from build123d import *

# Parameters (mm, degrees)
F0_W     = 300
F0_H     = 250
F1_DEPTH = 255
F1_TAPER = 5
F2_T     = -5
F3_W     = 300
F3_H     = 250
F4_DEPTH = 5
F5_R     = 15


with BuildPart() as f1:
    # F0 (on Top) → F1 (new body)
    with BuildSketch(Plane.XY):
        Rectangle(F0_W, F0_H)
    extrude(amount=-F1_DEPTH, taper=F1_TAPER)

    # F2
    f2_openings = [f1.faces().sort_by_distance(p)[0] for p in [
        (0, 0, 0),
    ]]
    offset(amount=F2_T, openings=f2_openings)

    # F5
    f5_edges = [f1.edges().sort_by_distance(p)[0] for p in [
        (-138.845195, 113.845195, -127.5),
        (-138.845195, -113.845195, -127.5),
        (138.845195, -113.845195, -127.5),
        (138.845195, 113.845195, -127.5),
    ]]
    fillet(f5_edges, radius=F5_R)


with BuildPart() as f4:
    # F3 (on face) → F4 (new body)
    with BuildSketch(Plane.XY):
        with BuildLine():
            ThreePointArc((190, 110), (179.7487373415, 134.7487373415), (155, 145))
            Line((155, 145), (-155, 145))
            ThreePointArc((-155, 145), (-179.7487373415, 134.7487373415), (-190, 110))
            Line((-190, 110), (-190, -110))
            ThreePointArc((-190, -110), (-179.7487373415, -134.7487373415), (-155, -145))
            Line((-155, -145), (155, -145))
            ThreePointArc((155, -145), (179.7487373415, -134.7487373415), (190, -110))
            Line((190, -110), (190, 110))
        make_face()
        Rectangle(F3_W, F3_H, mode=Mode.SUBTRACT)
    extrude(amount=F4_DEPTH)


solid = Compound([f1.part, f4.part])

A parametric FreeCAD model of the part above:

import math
import FreeCAD as App
import Part
import Sketcher
from FreeCAD import Vector
Q = App.Units.Quantity


def edges_at(feature, points):
    """Names of the edges that pass closest to the given points."""
    edges = feature.Shape.Edges
    near = lambda p: min(range(len(edges)), key=lambda i: edges[i].distToShape(Part.Vertex(*p))[0])
    return sorted({f"Edge{near(p) + 1}" for p in points})


def faces_at(feature, points):
    """Names of the faces that lie closest to the given points."""
    faces = feature.Shape.Faces
    near = lambda p: min(range(len(faces)), key=lambda i: faces[i].distToShape(Part.Vertex(*p))[0])
    return sorted({f"Face{near(p) + 1}" for p in points})


def add_polygon(sketch, points):
    """Adds a closed chain of lines whose ends are joined by coincident constraints."""
    first, n = sketch.GeometryCount, len(points)
    for a, b in zip(points, points[1:] + points[:1]):
        sketch.addGeometry(Part.LineSegment(App.Vector(*a, 0), App.Vector(*b, 0)), False)
    for i in range(n):
        sketch.addConstraint(Sketcher.Constraint("Coincident", first + i, 2, first + (i + 1) % n, 1))

doc = App.newDocument("Part")
body = doc.addObject("PartDesign::Body", "Body")

sketch1 = body.newObject("Sketcher::SketchObject", "Sketch")
sketch1.AttachmentSupport = (doc.getObject("XY_Plane"), [""])
sketch1.MapMode = "FlatFace"
add_polygon(sketch1, [(-150, 125), (-150, -125), (150, -125), (150, 125)])
sketch1.addConstraint([
    Sketcher.Constraint("Vertical", 0),
    Sketcher.Constraint("Horizontal", 1),
    Sketcher.Constraint("Vertical", 2),
    Sketcher.Constraint("Horizontal", 3),
    Sketcher.Constraint("Symmetric", 0, 2, 2, 2, -1, 1),
    Sketcher.Constraint("DistanceX", 1, 1, 1, 2, Q("300 mm")),
    Sketcher.Constraint("DistanceY", 0, 2, 0, 1, Q("250 mm")),
])
pad1 = body.newObject("PartDesign::Pad", "Pad")
pad1.Profile = sketch1
pad1.Length = 255
pad1.Reversed = True
pad1.TaperAngle = -5
doc.recompute()

thickness = body.newObject("PartDesign::Thickness", "Thickness")
thickness.Base = (pad1, faces_at(pad1, [(0, 0, 0)]))
thickness.Value = 5
thickness.Reversed = True
thickness.Join = "Arc"
doc.recompute()

fillet = body.newObject("PartDesign::Fillet", "Fillet")
fillet.Base = (thickness, edges_at(thickness, [
    (-138.845, 113.845, -127.5),
    (-138.845, -113.845, -127.5),
    (138.845, -113.845, -127.5),
    (138.845, 113.845, -127.5),
]))
fillet.Radius = 15
body2 = doc.addObject("PartDesign::Body", "Body001")

sketch2 = body2.newObject("Sketcher::SketchObject", "Sketch001")
sketch2.AttachmentSupport = (doc.getObject("XY_Plane001"), [""])
sketch2.MapMode = "FlatFace"
sketch2.addGeometry(Part.ArcOfCircle(Part.Circle(Vector(155, 110, 0), Vector(0, 0, 1), 35), math.radians(0), math.radians(90)), False)
sketch2.addGeometry(Part.LineSegment(Vector(155, 145, 0), Vector(-155, 145, 0)), False)
sketch2.addGeometry(Part.ArcOfCircle(Part.Circle(Vector(-155, 110, 0), Vector(0, 0, 1), 35), math.radians(90), math.radians(180)), False)
sketch2.addGeometry(Part.LineSegment(Vector(-190, 110, 0), Vector(-190, -110, 0)), False)
sketch2.addGeometry(Part.ArcOfCircle(Part.Circle(Vector(-155, -110, 0), Vector(0, 0, 1), 35), math.radians(180), math.radians(270)), False)
sketch2.addGeometry(Part.LineSegment(Vector(-155, -145, 0), Vector(155, -145, 0)), False)
sketch2.addGeometry(Part.ArcOfCircle(Part.Circle(Vector(155, -110, 0), Vector(0, 0, 1), 35), math.radians(-90), math.radians(0)), False)
sketch2.addGeometry(Part.LineSegment(Vector(190, -110, 0), Vector(190, 110, 0)), False)
add_polygon(sketch2, [(150, -125), (-150, -125), (-150, 125), (150, 125)])
sketch2.addConstraint([
    Sketcher.Constraint("Tangent", 0, 2, 1, 1),
    Sketcher.Constraint("Tangent", 1, 2, 2, 1),
    Sketcher.Constraint("Tangent", 2, 2, 3, 1),
    Sketcher.Constraint("Tangent", 3, 2, 4, 1),
    Sketcher.Constraint("Tangent", 4, 2, 5, 1),
    Sketcher.Constraint("Tangent", 5, 2, 6, 1),
    Sketcher.Constraint("Tangent", 6, 2, 7, 1),
    Sketcher.Constraint("Tangent", 7, 2, 0, 1),
    Sketcher.Constraint("Horizontal", 1),
    Sketcher.Constraint("Vertical", 3),
    Sketcher.Constraint("Horizontal", 5),
    Sketcher.Constraint("Vertical", 7),
    Sketcher.Constraint("Horizontal", 8),
    Sketcher.Constraint("Vertical", 9),
    Sketcher.Constraint("Horizontal", 10),
    Sketcher.Constraint("Vertical", 11),
    Sketcher.Constraint("Equal", 0, 2),
    Sketcher.Constraint("Equal", 2, 4),
    Sketcher.Constraint("Equal", 4, 6),
    Sketcher.Constraint("Symmetric", 0, 3, 4, 3, -1, 1),
    Sketcher.Constraint("Symmetric", 8, 2, 10, 2, -1, 1),
    Sketcher.Constraint("Radius", 0, Q("35 mm")),
    Sketcher.Constraint("DistanceX", 1, 2, 1, 1, Q("310 mm")),
    Sketcher.Constraint("DistanceX", 8, 2, 8, 1, Q("300 mm")),
    Sketcher.Constraint("DistanceY", 3, 2, 3, 1, Q("220 mm")),
    Sketcher.Constraint("DistanceY", 9, 1, 9, 2, Q("250 mm")),
])
pad2 = body2.newObject("PartDesign::Pad", "Pad001")
pad2.Profile = sketch2
pad2.Length = 5

doc.recompute()
